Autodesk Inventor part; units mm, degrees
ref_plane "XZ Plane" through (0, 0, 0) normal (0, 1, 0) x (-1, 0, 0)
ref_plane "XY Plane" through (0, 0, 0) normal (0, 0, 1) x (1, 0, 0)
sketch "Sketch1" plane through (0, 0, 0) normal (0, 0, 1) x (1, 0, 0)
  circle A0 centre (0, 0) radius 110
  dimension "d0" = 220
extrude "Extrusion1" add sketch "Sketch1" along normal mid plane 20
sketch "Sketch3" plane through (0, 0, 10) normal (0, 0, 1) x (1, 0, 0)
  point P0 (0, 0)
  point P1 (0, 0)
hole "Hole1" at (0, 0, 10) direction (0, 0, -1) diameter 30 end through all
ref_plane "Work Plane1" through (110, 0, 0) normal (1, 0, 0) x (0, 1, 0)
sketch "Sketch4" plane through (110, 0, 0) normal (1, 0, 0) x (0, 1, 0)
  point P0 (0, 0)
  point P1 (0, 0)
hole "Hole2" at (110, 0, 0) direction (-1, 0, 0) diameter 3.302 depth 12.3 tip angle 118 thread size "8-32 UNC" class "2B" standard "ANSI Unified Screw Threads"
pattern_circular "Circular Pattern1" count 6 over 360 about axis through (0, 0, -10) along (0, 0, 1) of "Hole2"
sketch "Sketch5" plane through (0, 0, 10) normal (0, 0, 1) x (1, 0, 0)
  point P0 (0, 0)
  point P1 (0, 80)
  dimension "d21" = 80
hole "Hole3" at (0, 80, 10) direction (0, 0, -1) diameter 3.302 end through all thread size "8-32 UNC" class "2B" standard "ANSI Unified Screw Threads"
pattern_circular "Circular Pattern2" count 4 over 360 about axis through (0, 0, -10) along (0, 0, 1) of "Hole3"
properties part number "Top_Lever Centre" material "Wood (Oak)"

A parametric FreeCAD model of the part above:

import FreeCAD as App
import Part
import Sketcher

V = App.Vector

doc = App.newDocument("Part")
body = doc.addObject("PartDesign::Body", "Body")

# Sketch on XY plane
sketch1 = body.newObject("Sketcher::SketchObject", "Sketch")
sketch1.AttachmentSupport = (doc.getObject("XY_Plane"), [""])
sketch1.MapMode = "FlatFace"
sketch1.addGeometry(Part.Circle(V(0, 0, 0), V(0, 0, 1), 110), False)
sketch1.addConstraint(Sketcher.Constraint("Coincident", 0, 3, -1, 1))
sketch1.addConstraint(Sketcher.Constraint("Diameter", 0, 220.0))
pad1 = body.newObject("PartDesign::Pad", "Pad")
pad1.Profile = sketch1
pad1.Length = 20
pad1.Midplane = True

# Sketch on XY plane
sketch2 = body.newObject("Sketcher::SketchObject", "Sketch001")
sketch2.AttachmentSupport = (doc.getObject("XY_Plane"), [""])
sketch2.MapMode = "FlatFace"
sketch2.AttachmentOffset = App.Placement(V(0, 0, 10), App.Rotation())
sketch2.addGeometry(Part.Circle(V(0, 0, 0), V(0, 0, 1), 15), False)
sketch2.addConstraint(Sketcher.Constraint("Coincident", 0, 3, -1, 1))
sketch2.addConstraint(Sketcher.Constraint("Diameter", 0, 30.0))
doc.recompute()
hole = body.newObject("PartDesign::Hole", "Hole")
hole.Profile = sketch2
hole.ThreadType = "None"
hole.Diameter = 30
hole.DepthType = "ThroughAll"

# Sketch on YZ plane
sketch3 = body.newObject("Sketcher::SketchObject", "Sketch002")
sketch3.AttachmentSupport = (doc.getObject("YZ_Plane"), [""])
sketch3.MapMode = "FlatFace"
sketch3.AttachmentOffset = App.Placement(V(0, 0, 110), App.Rotation())
sketch3.addGeometry(Part.Circle(V(0, 0, 0), V(0, 0, 1), 1.651), False)
sketch3.addConstraint(Sketcher.Constraint("Coincident", 0, 3, -1, 1))
sketch3.addConstraint(Sketcher.Constraint("Diameter", 0, 3.302))
doc.recompute()
hole2 = body.newObject("PartDesign::Hole", "Hole001")
hole2.Profile = sketch3
hole2.ThreadType = "None"
hole2.Diameter = 3.302
hole2.DepthType = "Dimension"
hole2.Depth = 12.3
hole2.DrillPoint = "Angled"
hole2.DrillPointAngle = 118
doc.recompute()

polarpattern = body.newObject("PartDesign::PolarPattern", "PolarPattern")
polarpattern.Originals = [hole2]
polarpattern.Axis = (doc.getObject("Z_Axis"), [""])
polarpattern.Angle = 360
polarpattern.Occurrences = 6
body.Tip = polarpattern

# Sketch on XY plane
sketch4 = body.newObject("Sketcher::SketchObject", "Sketch003")
sketch4.AttachmentSupport = (doc.getObject("XY_Plane"), [""])
sketch4.MapMode = "FlatFace"
sketch4.AttachmentOffset = App.Placement(V(0, 0, 10), App.Rotation())
sketch4.addGeometry(Part.Circle(V(0, 80, 0), V(0, 0, 1), 1.651), False)
sketch4.addConstraint(Sketcher.Constraint("PointOnObject", 0, 3, -2))
sketch4.addConstraint(Sketcher.Constraint("Diameter", 0, 3.302))
sketch4.addConstraint(Sketcher.Constraint("DistanceY", -1, 1, 0, 3, 80.0))
doc.recompute()
hole3 = body.newObject("PartDesign::Hole", "Hole002")
hole3.Profile = sketch4
hole3.ThreadType = "None"
hole3.Diameter = 3.302
hole3.DepthType = "ThroughAll"
doc.recompute()

polarpattern2 = body.newObject("PartDesign::PolarPattern", "PolarPattern001")
polarpattern2.Originals = [hole3]
polarpattern2.Axis = (doc.getObject("Z_Axis"), [""])
polarpattern2.Angle = 360
polarpattern2.Occurrences = 4
body.Tip = polarpattern2

doc.recompute()
